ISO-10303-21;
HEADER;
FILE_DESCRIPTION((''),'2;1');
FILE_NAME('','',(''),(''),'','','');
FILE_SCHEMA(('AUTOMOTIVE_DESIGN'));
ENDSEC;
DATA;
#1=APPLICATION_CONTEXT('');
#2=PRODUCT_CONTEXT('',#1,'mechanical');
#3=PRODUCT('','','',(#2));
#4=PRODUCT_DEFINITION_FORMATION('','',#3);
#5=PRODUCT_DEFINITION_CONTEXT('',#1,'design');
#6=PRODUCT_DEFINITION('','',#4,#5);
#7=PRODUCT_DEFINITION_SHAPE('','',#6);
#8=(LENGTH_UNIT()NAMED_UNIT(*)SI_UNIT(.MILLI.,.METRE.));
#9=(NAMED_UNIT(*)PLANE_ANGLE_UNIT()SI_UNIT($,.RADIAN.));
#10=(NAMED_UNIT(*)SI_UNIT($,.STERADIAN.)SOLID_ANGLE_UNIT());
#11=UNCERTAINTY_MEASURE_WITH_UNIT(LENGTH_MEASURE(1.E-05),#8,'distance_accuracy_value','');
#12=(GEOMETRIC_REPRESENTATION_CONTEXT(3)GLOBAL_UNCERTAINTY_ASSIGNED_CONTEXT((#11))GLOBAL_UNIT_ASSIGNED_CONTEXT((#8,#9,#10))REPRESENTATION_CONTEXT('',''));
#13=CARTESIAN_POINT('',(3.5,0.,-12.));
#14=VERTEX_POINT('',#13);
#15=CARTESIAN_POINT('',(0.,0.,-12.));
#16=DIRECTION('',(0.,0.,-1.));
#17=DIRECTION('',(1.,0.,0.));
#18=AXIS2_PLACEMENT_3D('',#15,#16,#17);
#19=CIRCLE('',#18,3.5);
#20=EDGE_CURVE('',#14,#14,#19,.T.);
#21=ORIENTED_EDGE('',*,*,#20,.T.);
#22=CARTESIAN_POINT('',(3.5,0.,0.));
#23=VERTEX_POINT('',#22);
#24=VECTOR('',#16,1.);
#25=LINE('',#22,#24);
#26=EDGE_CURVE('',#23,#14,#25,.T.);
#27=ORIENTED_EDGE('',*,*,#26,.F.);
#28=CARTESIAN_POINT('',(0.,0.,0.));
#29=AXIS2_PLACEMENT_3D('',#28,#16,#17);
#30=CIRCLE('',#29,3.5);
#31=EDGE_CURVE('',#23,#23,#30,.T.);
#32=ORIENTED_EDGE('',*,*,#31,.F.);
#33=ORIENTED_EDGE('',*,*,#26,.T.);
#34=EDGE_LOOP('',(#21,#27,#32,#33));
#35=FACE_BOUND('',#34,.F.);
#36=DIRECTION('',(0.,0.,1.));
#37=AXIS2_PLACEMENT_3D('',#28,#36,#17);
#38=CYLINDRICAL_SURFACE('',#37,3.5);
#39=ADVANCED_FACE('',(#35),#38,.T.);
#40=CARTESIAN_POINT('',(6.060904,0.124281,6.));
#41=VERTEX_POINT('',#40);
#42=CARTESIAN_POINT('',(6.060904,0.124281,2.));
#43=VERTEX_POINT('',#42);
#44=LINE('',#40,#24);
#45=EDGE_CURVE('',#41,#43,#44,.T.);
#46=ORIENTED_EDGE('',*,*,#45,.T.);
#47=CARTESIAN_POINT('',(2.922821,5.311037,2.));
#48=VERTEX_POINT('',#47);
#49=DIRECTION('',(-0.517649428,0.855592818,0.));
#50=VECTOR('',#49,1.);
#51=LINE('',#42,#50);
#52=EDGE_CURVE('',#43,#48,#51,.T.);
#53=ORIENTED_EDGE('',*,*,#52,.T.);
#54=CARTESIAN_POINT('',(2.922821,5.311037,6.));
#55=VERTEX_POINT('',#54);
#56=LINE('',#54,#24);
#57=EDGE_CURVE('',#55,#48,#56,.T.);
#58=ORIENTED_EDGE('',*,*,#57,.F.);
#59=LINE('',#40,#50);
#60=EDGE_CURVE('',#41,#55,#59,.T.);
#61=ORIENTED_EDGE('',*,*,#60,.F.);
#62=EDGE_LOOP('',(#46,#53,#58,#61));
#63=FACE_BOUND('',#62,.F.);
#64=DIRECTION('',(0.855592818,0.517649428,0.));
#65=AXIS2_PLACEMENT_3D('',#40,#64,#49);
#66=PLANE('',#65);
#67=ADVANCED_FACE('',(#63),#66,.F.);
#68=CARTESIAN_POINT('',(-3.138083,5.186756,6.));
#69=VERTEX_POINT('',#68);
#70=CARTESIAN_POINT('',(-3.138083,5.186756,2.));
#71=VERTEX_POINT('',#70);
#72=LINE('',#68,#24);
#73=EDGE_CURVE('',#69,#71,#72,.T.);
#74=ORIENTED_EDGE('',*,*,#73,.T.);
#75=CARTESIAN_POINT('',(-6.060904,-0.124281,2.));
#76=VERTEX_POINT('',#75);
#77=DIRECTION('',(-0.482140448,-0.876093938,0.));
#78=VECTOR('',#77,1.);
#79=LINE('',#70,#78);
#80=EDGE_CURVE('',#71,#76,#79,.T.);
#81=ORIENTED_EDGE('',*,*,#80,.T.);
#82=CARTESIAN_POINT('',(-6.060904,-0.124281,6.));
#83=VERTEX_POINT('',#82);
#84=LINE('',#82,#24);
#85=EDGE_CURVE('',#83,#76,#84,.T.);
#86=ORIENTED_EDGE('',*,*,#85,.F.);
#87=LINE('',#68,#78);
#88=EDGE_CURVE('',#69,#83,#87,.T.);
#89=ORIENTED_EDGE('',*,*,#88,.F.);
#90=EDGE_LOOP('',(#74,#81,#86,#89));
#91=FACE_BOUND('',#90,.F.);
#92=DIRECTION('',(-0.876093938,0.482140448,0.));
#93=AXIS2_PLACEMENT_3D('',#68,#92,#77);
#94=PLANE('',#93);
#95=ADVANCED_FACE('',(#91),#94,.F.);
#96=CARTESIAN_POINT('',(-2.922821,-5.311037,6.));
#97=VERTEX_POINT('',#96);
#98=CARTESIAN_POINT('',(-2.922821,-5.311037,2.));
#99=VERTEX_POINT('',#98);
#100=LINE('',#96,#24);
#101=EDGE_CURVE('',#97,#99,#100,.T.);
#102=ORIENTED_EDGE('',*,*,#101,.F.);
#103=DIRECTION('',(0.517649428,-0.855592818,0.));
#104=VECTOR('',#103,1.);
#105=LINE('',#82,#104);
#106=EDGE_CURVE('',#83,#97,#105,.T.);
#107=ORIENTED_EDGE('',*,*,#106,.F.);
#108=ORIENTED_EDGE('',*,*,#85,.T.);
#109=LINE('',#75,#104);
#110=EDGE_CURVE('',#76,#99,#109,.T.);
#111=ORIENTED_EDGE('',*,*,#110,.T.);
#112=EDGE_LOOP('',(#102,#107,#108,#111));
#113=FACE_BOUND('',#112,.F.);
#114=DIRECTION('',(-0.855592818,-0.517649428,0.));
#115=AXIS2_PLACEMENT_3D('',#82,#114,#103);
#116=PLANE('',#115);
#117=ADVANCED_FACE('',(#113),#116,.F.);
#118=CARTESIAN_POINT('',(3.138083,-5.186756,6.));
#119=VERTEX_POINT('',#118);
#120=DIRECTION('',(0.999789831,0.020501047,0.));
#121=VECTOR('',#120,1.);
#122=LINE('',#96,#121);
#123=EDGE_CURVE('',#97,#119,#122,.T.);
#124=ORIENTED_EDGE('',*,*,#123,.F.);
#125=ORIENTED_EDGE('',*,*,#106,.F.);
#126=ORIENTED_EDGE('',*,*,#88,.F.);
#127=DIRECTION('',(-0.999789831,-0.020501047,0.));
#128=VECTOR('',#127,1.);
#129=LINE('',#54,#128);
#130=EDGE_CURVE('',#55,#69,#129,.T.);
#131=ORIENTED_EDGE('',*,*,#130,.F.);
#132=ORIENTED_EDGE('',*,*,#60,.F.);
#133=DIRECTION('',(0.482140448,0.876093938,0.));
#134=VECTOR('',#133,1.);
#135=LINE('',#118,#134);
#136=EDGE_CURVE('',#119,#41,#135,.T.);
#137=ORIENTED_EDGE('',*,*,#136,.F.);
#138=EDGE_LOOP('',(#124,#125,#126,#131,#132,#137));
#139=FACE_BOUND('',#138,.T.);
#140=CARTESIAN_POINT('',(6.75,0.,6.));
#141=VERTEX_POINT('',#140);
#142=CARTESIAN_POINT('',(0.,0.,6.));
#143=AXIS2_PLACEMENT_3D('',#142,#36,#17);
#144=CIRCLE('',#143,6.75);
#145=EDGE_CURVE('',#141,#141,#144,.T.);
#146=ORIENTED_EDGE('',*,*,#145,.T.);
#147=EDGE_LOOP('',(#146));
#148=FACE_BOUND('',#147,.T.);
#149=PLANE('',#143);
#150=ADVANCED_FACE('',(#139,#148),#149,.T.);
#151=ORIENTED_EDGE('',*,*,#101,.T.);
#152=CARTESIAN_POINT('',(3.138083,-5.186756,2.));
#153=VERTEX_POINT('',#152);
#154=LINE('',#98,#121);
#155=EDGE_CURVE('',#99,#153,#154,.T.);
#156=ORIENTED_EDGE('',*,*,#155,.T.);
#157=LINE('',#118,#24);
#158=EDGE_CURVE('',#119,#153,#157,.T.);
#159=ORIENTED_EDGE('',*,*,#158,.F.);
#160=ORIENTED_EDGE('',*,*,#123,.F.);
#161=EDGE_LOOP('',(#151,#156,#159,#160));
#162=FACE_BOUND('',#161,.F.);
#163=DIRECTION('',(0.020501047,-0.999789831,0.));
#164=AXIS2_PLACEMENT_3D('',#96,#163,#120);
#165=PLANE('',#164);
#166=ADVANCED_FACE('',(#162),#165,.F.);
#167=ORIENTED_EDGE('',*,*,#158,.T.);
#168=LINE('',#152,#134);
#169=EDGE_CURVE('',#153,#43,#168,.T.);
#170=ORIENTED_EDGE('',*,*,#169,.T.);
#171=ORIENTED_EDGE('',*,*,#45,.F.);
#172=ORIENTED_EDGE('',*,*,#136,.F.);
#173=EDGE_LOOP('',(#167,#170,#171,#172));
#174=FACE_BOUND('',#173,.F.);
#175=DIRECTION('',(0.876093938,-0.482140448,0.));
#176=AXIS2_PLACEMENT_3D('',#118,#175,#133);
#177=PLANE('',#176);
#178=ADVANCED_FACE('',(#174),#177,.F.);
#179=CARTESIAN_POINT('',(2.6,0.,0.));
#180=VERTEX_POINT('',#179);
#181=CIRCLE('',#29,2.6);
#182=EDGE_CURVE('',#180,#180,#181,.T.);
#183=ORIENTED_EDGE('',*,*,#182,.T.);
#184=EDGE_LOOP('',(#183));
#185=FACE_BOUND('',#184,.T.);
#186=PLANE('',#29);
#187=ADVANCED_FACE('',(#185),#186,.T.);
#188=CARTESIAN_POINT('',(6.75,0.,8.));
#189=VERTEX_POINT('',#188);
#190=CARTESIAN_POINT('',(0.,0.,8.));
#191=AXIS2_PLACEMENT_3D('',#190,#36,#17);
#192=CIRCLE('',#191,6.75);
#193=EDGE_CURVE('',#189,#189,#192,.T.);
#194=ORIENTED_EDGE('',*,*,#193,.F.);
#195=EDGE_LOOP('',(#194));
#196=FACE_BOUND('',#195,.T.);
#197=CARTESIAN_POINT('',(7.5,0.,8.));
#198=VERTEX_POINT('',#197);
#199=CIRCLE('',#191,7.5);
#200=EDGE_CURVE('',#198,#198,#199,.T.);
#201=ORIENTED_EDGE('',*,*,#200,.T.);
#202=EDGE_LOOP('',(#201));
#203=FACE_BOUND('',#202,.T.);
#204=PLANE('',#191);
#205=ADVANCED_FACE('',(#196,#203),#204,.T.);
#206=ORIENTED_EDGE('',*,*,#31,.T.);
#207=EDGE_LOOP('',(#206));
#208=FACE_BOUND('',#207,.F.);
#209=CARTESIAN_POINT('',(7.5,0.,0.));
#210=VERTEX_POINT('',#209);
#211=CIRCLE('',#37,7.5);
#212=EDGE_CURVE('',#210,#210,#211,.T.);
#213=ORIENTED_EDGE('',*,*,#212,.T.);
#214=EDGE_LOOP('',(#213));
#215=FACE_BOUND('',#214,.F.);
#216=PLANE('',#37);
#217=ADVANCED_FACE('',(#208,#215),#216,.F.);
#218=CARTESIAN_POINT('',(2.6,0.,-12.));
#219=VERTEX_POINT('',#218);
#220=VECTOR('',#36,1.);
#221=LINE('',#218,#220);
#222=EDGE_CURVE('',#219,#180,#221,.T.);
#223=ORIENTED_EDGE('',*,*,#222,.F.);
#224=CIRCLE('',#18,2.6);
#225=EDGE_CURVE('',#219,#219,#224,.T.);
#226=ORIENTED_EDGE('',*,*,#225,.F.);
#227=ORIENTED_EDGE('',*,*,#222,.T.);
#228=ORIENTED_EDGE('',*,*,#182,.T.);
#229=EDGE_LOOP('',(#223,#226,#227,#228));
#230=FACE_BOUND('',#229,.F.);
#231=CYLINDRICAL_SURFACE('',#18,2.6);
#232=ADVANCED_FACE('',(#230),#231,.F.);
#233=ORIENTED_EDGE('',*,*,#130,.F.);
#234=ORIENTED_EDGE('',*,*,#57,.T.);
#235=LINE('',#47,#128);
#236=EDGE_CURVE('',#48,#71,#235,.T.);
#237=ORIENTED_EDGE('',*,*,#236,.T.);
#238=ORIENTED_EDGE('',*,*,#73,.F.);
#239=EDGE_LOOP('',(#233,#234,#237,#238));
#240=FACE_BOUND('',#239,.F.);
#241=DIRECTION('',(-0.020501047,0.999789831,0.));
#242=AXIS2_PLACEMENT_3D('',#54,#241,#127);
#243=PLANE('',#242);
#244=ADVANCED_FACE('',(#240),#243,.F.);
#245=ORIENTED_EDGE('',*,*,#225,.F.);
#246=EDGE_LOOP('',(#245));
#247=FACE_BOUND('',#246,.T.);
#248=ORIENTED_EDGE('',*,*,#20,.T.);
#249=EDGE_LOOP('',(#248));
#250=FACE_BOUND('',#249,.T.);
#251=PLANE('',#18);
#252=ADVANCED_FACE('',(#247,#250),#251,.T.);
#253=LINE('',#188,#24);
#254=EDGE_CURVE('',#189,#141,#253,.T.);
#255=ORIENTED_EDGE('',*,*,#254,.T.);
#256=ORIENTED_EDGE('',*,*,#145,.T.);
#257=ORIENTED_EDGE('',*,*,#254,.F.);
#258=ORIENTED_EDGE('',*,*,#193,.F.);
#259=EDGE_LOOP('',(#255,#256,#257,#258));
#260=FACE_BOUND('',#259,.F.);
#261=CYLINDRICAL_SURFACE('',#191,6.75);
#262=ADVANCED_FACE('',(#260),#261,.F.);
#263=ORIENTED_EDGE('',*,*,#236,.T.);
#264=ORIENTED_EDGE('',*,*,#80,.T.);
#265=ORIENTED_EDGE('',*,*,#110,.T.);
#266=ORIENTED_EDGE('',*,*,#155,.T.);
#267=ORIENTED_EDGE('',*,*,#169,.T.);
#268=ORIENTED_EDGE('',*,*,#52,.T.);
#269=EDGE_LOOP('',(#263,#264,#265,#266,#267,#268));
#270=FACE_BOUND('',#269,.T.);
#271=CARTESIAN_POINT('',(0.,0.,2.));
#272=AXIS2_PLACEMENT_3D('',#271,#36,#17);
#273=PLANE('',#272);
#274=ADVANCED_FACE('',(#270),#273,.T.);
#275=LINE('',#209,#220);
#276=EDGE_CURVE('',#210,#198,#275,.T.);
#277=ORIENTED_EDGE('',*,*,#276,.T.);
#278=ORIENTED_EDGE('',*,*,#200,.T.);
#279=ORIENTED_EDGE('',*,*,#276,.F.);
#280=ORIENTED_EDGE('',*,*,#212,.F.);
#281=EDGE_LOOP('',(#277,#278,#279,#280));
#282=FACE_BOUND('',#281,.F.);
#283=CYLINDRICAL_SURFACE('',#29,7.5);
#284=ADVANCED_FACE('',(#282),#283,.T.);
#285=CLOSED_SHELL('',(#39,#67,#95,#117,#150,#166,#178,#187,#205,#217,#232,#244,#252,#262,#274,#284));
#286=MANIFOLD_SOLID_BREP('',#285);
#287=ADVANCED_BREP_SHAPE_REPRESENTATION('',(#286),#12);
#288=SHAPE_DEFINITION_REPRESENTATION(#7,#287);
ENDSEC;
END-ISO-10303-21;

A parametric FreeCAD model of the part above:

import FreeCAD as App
import Part
import Sketcher

doc = App.newDocument("Part")
body = doc.addObject("PartDesign::Body", "Body")

sketch1 = doc.addObject("Sketcher::SketchObject", "Sketch")
body.addObject(sketch1)
sketch1.AttachmentSupport = (doc.XY_Plane, [""])
sketch1.MapMode = "FlatFace"
sketch1.addGeometry(Part.Circle(App.Vector(0, 0, 0), App.Vector(0, 0, 1), 8), False)
sketch1.addConstraint(Sketcher.Constraint("Coincident", 0, 3, -1, 1))
sketch1.addConstraint(Sketcher.Constraint("Diameter", 0, 15.0))
pad1 = doc.addObject("PartDesign::Pad", "Pad")
body.addObject(pad1)
pad1.Profile = sketch1
pad1.Length = 8

sketch2 = doc.addObject("Sketcher::SketchObject", "Sketch001")
body.addObject(sketch2)
sketch2.AttachmentSupport = (doc.XY_Plane, [""])
sketch2.MapMode = "FlatFace"
sketch2.AttachmentOffset = App.Placement(App.Vector(0, 0, 8), App.Rotation())
sketch2.addGeometry(Part.Circle(App.Vector(0, 0, 0), App.Vector(0, 0, 1), 7), False)
sketch2.addConstraint(Sketcher.Constraint("Coincident", 0, 3, -1, 1))
sketch2.addConstraint(Sketcher.Constraint("Diameter", 0, 13.5))
pocket1 = doc.addObject("PartDesign::Pocket", "Pocket")
body.addObject(pocket1)
pocket1.Profile = sketch2
pocket1.Length = 2

sketch3 = doc.addObject("Sketcher::SketchObject", "Sketch002")
body.addObject(sketch3)
sketch3.AttachmentSupport = (doc.XY_Plane, [""])
sketch3.MapMode = "FlatFace"
sketch3.AttachmentOffset = App.Placement(App.Vector(0, 0, 6), App.Rotation())
sketch3.addGeometry(Part.LineSegment(App.Vector(6, 0, 0), App.Vector(3, 5, 0)), False)
sketch3.addGeometry(Part.LineSegment(App.Vector(3, 5, 0), App.Vector(-3, 5, 0)), False)
sketch3.addGeometry(Part.LineSegment(App.Vector(-3, 5, 0), App.Vector(-6, 0, 0)), False)
sketch3.addGeometry(Part.LineSegment(App.Vector(-6, 0, 0), App.Vector(-3, -5, 0)), False)
sketch3.addGeometry(Part.LineSegment(App.Vector(-3, -5, 0), App.Vector(3, -5, 0)), False)
sketch3.addGeometry(Part.LineSegment(App.Vector(3, -5, 0), App.Vector(6, 0, 0)), False)
sketch3.addConstraint(Sketcher.Constraint("Coincident", 0, 2, 1, 1))
sketch3.addConstraint(Sketcher.Constraint("Coincident", 1, 2, 2, 1))
sketch3.addConstraint(Sketcher.Constraint("Coincident", 2, 2, 3, 1))
sketch3.addConstraint(Sketcher.Constraint("Coincident", 3, 2, 4, 1))
sketch3.addConstraint(Sketcher.Constraint("Coincident", 4, 2, 5, 1))
sketch3.addConstraint(Sketcher.Constraint("Coincident", 5, 2, 0, 1))
sketch3.addConstraint(Sketcher.Constraint("Symmetric", 0, 2, 3, 2, -1, 1))
sketch3.addConstraint(Sketcher.Constraint("Symmetric", 1, 2, 4, 2, -1, 1))
sketch3.addConstraint(Sketcher.Constraint("Symmetric", 2, 2, 5, 2, -1, 1))
sketch3.addConstraint(Sketcher.Constraint("Equal", 0, 1))
sketch3.addConstraint(Sketcher.Constraint("Equal", 1, 2))
sketch3.addConstraint(Sketcher.Constraint("Distance", 0, 6.062178))
sketch3.addConstraint(Sketcher.Constraint("DistanceX", -1, 1, 0, 2, 2.922821))
sketch3.addConstraint(Sketcher.Constraint("DistanceY", 2, 2, -1, 1, 0.124281))
sketch3.addConstraint(Sketcher.Constraint("DistanceY", 1, 2, 0, 2, 0.124281))
pocket2 = doc.addObject("PartDesign::Pocket", "Pocket001")
body.addObject(pocket2)
pocket2.Profile = sketch3
pocket2.Length = 4

sketch4 = doc.addObject("Sketcher::SketchObject", "Sketch003")
body.addObject(sketch4)
sketch4.AttachmentSupport = (doc.XY_Plane, [""])
sketch4.MapMode = "FlatFace"
sketch4.addGeometry(Part.Circle(App.Vector(0, 0, 0), App.Vector(0, 0, 1), 3.5), False)
sketch4.addConstraint(Sketcher.Constraint("Coincident", 0, 3, -1, 1))
sketch4.addConstraint(Sketcher.Constraint("Diameter", 0, 7.0))
pad2 = doc.addObject("PartDesign::Pad", "Pad001")
body.addObject(pad2)
pad2.Profile = sketch4
pad2.Length = 12
pad2.Reversed = True

sketch5 = doc.addObject("Sketcher::SketchObject", "Sketch004")
body.addObject(sketch5)
sketch5.AttachmentSupport = (doc.XY_Plane, [""])
sketch5.MapMode = "FlatFace"
sketch5.AttachmentOffset = App.Placement(App.Vector(0, 0, -12), App.Rotation())
sketch5.addGeometry(Part.Circle(App.Vector(0, 0, 0), App.Vector(0, 0, 1), 2.6), False)
sketch5.addConstraint(Sketcher.Constraint("Coincident", 0, 3, -1, 1))
sketch5.addConstraint(Sketcher.Constraint("Diameter", 0, 5.2))
pocket3 = doc.addObject("PartDesign::Pocket", "Pocket002")
body.addObject(pocket3)
pocket3.Profile = sketch5
pocket3.Length = 12
pocket3.Reversed = True

doc.recompute()
